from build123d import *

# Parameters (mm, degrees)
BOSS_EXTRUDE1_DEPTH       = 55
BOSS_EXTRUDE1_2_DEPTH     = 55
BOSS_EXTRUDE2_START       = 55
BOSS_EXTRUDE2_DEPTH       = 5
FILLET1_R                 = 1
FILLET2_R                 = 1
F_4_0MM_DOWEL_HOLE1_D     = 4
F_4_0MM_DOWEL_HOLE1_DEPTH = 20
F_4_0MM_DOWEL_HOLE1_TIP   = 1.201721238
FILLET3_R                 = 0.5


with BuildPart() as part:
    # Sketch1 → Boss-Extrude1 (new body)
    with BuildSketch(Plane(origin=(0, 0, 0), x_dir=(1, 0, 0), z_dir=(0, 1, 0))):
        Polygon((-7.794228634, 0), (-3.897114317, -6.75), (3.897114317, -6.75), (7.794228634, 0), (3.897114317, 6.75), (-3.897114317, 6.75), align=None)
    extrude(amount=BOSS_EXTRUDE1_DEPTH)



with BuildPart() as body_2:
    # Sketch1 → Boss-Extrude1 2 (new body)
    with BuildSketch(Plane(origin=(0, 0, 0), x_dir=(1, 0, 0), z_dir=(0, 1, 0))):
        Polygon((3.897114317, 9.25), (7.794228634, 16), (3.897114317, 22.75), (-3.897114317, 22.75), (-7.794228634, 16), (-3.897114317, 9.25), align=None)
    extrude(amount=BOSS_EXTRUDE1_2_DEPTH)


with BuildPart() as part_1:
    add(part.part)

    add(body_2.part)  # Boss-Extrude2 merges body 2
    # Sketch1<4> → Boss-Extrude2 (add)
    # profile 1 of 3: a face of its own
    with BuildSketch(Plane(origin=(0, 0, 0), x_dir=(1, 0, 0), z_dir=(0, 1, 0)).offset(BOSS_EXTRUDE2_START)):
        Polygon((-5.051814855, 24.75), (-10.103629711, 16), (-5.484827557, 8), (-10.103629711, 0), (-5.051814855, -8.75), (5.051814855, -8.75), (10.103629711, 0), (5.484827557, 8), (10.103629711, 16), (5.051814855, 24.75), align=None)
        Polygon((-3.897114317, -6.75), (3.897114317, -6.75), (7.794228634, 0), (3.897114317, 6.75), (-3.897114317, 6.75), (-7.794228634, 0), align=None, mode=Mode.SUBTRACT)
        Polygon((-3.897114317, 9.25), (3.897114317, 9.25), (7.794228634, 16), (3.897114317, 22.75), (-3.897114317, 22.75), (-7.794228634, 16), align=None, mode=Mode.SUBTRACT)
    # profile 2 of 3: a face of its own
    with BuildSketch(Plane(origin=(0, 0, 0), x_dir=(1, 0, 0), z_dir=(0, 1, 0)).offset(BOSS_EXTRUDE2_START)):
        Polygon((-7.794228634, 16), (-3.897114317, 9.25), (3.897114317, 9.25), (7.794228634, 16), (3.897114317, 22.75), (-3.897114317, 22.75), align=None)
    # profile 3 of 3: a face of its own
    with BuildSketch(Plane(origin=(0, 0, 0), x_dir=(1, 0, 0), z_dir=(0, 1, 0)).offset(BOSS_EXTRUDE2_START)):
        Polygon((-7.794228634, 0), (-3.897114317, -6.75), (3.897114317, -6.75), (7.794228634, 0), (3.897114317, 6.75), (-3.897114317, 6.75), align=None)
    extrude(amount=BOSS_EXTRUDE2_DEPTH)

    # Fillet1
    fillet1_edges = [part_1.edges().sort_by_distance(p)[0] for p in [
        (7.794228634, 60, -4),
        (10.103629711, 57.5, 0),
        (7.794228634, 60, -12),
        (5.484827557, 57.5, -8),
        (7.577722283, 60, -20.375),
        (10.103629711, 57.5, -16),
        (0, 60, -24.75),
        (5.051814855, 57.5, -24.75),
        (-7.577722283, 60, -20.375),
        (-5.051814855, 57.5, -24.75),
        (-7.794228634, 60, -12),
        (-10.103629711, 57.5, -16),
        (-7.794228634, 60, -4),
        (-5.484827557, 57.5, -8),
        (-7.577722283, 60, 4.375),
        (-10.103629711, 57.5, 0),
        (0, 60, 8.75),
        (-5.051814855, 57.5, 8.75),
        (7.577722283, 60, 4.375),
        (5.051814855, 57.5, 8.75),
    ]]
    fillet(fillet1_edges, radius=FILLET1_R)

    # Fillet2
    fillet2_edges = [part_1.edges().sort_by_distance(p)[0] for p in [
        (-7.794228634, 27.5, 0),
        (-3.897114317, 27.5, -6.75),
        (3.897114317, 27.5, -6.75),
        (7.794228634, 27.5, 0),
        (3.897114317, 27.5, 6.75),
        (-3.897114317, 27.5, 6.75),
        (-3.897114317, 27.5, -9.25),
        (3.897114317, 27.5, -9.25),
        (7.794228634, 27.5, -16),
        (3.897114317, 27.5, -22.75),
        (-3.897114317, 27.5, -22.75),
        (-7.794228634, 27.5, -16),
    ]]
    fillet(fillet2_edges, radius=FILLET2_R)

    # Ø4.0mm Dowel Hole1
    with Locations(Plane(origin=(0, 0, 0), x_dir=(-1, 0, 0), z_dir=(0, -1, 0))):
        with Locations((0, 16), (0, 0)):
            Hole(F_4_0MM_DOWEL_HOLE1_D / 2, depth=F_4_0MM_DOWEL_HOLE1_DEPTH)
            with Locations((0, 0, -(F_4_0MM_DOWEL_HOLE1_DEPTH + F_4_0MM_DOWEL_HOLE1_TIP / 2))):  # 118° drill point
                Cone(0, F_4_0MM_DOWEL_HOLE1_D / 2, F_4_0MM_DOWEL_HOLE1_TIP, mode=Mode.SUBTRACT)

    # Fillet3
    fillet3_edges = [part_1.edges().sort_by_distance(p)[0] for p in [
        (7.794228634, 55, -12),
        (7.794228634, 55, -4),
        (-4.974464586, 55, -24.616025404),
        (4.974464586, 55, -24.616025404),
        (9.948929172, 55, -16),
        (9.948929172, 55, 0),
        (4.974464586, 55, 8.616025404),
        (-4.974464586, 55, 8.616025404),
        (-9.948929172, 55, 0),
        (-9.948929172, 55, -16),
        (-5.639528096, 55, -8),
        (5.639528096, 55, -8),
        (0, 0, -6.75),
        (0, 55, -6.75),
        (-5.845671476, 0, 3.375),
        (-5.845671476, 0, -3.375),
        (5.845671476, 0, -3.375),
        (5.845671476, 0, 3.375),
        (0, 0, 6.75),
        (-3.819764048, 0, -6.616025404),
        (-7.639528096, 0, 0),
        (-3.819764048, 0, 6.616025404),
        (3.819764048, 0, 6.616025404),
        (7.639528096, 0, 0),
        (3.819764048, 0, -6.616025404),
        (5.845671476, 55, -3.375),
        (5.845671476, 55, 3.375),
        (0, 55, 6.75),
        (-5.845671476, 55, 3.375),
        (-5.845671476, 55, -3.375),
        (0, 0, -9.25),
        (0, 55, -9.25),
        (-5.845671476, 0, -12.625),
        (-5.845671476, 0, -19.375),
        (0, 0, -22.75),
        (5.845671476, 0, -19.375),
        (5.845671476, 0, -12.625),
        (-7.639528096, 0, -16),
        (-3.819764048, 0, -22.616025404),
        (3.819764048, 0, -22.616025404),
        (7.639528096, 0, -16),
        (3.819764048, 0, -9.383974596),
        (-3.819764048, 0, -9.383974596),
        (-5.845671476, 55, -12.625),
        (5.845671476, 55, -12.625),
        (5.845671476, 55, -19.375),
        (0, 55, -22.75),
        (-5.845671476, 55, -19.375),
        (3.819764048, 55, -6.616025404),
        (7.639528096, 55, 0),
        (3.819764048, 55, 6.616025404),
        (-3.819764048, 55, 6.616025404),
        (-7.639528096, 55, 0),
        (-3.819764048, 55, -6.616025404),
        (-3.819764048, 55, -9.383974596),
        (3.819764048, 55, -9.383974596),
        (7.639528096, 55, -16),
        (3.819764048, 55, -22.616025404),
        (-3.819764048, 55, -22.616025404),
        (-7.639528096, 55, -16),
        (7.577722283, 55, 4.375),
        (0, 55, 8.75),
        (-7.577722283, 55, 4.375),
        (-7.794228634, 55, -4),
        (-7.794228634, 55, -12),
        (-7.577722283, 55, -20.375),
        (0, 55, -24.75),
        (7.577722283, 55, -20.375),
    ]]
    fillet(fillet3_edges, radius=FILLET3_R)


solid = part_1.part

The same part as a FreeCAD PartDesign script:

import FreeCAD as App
import Part
import Sketcher
from FreeCAD import Vector
Q = App.Units.Quantity


def edges_at(feature, points):
    """Names of the edges that pass closest to the given points."""
    edges = feature.Shape.Edges
    near = lambda p: min(range(len(edges)), key=lambda i: edges[i].distToShape(Part.Vertex(*p))[0])
    return sorted({f"Edge{near(p) + 1}" for p in points})


def add_polygon(sketch, points):
    """Adds a closed chain of lines whose ends are joined by coincident constraints."""
    first, n = sketch.GeometryCount, len(points)
    for a, b in zip(points, points[1:] + points[:1]):
        sketch.addGeometry(Part.LineSegment(App.Vector(*a, 0), App.Vector(*b, 0)), False)
    for i in range(n):
        sketch.addConstraint(Sketcher.Constraint("Coincident", first + i, 2, first + (i + 1) % n, 1))

doc = App.newDocument("Part")
params = doc.addObject("Spreadsheet::Sheet", "Params")
for row, (alias, value) in enumerate([
    ("pad1_length", "55 mm"),
    ("pad2_length", "55 mm"),
    ("pad3_length", "5 mm"),
    ("fillet_radius", "1 mm"),
    ("fillet2_radius", "1 mm"),
    ("sketch4_diameter", "4 mm"),
    ("hole_diameter", "4 mm"),
    ("hole_depth", "20 mm"),
    ("fillet3_radius", "0.5 mm"),
], start=1):
    params.set(f"A{row}", alias)
    params.set(f"B{row}", "=" + value)
    params.setAlias(f"B{row}", alias)

body = doc.addObject("PartDesign::Body", "Body")

# Sketch on XZ plane
sketch1 = body.newObject("Sketcher::SketchObject", "Sketch")
sketch1.AttachmentSupport = (doc.getObject("XZ_Plane"), [""])
sketch1.MapMode = "FlatFace"
add_polygon(sketch1, [(-8, 0), (-4, 7), (4, 7), (8, 0), (4, -7), (-4, -7)])  # lines 0-5
sketch1.addConstraint(Sketcher.Constraint("Horizontal", 1))
sketch1.addConstraint(Sketcher.Constraint("Horizontal", 4))
sketch1.addConstraint(Sketcher.Constraint("Symmetric", 0, 2, 3, 2, -1, 1))
sketch1.addConstraint(Sketcher.Constraint("Symmetric", 2, 2, 5, 2, -1, 1))
sketch1.addConstraint(Sketcher.Constraint("PointOnObject", 2, 2, -1))
sketch1.addConstraint(Sketcher.Constraint("Parallel", 2, 5))
sketch1.addConstraint(Sketcher.Constraint("Vertical", 1, 2, 3, 2))
sketch1.addConstraint(Sketcher.Constraint("Angle", 0, Q("60 deg")))
sketch1.addConstraint(Sketcher.Constraint("DistanceY", 3, 2, 1, 2, 13.5))
sketch1.addConstraint(Sketcher.Constraint("DistanceX", 1, 1, 1, 2, 7.794229))
pad1 = body.newObject("PartDesign::Pad", "Pad")
pad1.Profile = sketch1
pad1.setExpression("Length", "Params.pad1_length")
pad1.Reversed = True
body2 = doc.addObject("PartDesign::Body", "Body001")

# Sketch on XZ plane
sketch2 = body2.newObject("Sketcher::SketchObject", "Sketch001")
sketch2.AttachmentSupport = (doc.getObject("XZ_Plane001"), [""])
sketch2.MapMode = "FlatFace"
add_polygon(sketch2, [(4, -9), (8, -16), (4, -23), (-4, -23), (-8, -16), (-4, -9)])  # lines 0-5
sketch2.addConstraint(Sketcher.Constraint("Horizontal", 2))
sketch2.addConstraint(Sketcher.Constraint("Horizontal", 5))
sketch2.addConstraint(Sketcher.Constraint("Symmetric", 0, 2, 3, 2, -2))
sketch2.addConstraint(Sketcher.Constraint("Parallel", 0, 3))
sketch2.addConstraint(Sketcher.Constraint("Parallel", 1, 4))
sketch2.addConstraint(Sketcher.Constraint("Vertical", 2, 2, 4, 2))
sketch2.addConstraint(Sketcher.Constraint("Vertical", 1, 2, 5, 2))
sketch2.addConstraint(Sketcher.Constraint("Angle", 0, Q("-60 deg")))
sketch2.addConstraint(Sketcher.Constraint("DistanceY", 0, 2, -1, 1, 16.0))
sketch2.addConstraint(Sketcher.Constraint("DistanceY", 2, 2, 4, 2, 13.5))
sketch2.addConstraint(Sketcher.Constraint("DistanceX", 2, 2, 2, 1, 7.794229))
pad2 = body2.newObject("PartDesign::Pad", "Pad001")
pad2.Profile = sketch2
pad2.setExpression("Length", "Params.pad2_length")
pad2.Reversed = True
body.AllowCompound = True
doc.recompute()

boolean = body.newObject("PartDesign::Boolean", "Boolean")
boolean.Type = "Fuse"
boolean.addObjects([body2])

# Sketch on XZ plane
sketch3 = body.newObject("Sketcher::SketchObject", "Sketch002")
sketch3.AttachmentSupport = (doc.getObject("XZ_Plane"), [""])
sketch3.MapMode = "FlatFace"
sketch3.AttachmentOffset = App.Placement(Vector(0, 0, -55), App.Rotation())
add_polygon(sketch3, [(-5, -25), (-10, -16), (-5, -8), (-10, 0), (-5, 9), (5, 9), (10, 0), (5, -8), (10, -16), (5, -25)])  # lines 0-9
sketch3.addConstraint(Sketcher.Constraint("Horizontal", 4))
sketch3.addConstraint(Sketcher.Constraint("Horizontal", 9))
sketch3.addConstraint(Sketcher.Constraint("Symmetric", 2, 2, 5, 2, -1, 1))
sketch3.addConstraint(Sketcher.Constraint("Symmetric", 1, 2, 6, 2, -2))
sketch3.addConstraint(Sketcher.Constraint("Symmetric", 0, 2, 7, 2, -2))
sketch3.addConstraint(Sketcher.Constraint("PointOnObject", 2, 2, -1))
sketch3.addConstraint(Sketcher.Constraint("Parallel", 0, 2))
sketch3.addConstraint(Sketcher.Constraint("Parallel", 1, 3))
sketch3.addConstraint(Sketcher.Constraint("Parallel", 2, 5))
sketch3.addConstraint(Sketcher.Constraint("Parallel", 3, 6))
sketch3.addConstraint(Sketcher.Constraint("Parallel", 6, 8))
sketch3.addConstraint(Sketcher.Constraint("Vertical", 0, 2, 2, 2))
sketch3.addConstraint(Sketcher.Constraint("Vertical", 4, 2, 8, 2))
sketch3.addConstraint(Sketcher.Constraint("Angle", 0, Q("120 deg")))
sketch3.addConstraint(Sketcher.Constraint("DistanceY", 0, 2, -1, 1, 16.0))
sketch3.addConstraint(Sketcher.Constraint("DistanceY", -1, 1, 3, 2, 8.75))
sketch3.addConstraint(Sketcher.Constraint("DistanceX", 4, 1, 4, 2, 10.10363))
pad3 = body.newObject("PartDesign::Pad", "Pad002")
pad3.Profile = sketch3
pad3.setExpression("Length", "Params.pad3_length")
pad3.Reversed = True
doc.recompute()

fillet = body.newObject("PartDesign::Fillet", "Fillet")
fillet.Base = (pad3, edges_at(pad3, [
    (7.794, 60, -4),
    (10.104, 57.5, 0),
    (7.794, 60, -12),
    (5.485, 57.5, -8),
    (7.578, 60, -20.375),
    (10.104, 57.5, -16),
    (0, 60, -24.75),
    (5.052, 57.5, -24.75),
    (-7.578, 60, -20.375),
    (-5.052, 57.5, -24.75),
    (-7.794, 60, -12),
    (-10.104, 57.5, -16),
    (-7.794, 60, -4),
    (-5.485, 57.5, -8),
    (-7.578, 60, 4.375),
    (-10.104, 57.5, 0),
    (0, 60, 8.75),
    (-5.052, 57.5, 8.75),
    (7.578, 60, 4.375),
    (5.052, 57.5, 8.75),
]))
fillet.setExpression("Radius", "Params.fillet_radius")
doc.recompute()

fillet2 = body.newObject("PartDesign::Fillet", "Fillet001")
fillet2.Base = (fillet, edges_at(fillet, [
    (-7.794, 27.5, 0),
    (-3.897, 27.5, -6.75),
    (3.897, 27.5, -6.75),
    (7.794, 27.5, 0),
    (3.897, 27.5, 6.75),
    (-3.897, 27.5, 6.75),
    (-3.897, 27.5, -9.25),
    (3.897, 27.5, -9.25),
    (7.794, 27.5, -16),
    (3.897, 27.5, -22.75),
    (-3.897, 27.5, -22.75),
    (-7.794, 27.5, -16),
]))
fillet2.setExpression("Radius", "Params.fillet2_radius")

# Sketch on XZ plane
sketch4 = body.newObject("Sketcher::SketchObject", "Sketch003")
sketch4.AttachmentSupport = (doc.getObject("XZ_Plane"), [""])
sketch4.MapMode = "FlatFace"
sketch4.addGeometry(Part.Circle(Vector(0, -16, 0), Vector(0, 0, 1), 2), False)
sketch4.addGeometry(Part.Circle(Vector(0, 0, 0), Vector(0, 0, 1), 2), False)
sketch4.addConstraint(Sketcher.Constraint("Coincident", 1, 3, -1, 1))
sketch4.addConstraint(Sketcher.Constraint("Equal", 0, 1))
sketch4.addConstraint(Sketcher.Constraint("PointOnObject", 0, 3, -2))
sketch4.addConstraint(Sketcher.Constraint("Diameter", 0, 4.0))
sketch4.addConstraint(Sketcher.Constraint("DistanceY", 0, 3, -1, 1, 16.0))
sketch4.setExpression("Constraints[3]", "Params.sketch4_diameter")
doc.recompute()
hole = body.newObject("PartDesign::Hole", "Hole")
hole.Profile = sketch4
hole.ThreadType = "None"
hole.setExpression("Diameter", "Params.hole_diameter")
hole.DepthType = "Dimension"
hole.setExpression("Depth", "Params.hole_depth")
hole.DrillPoint = "Angled"
hole.DrillPointAngle = 118
doc.recompute()

fillet3 = body.newObject("PartDesign::Fillet", "Fillet002")
fillet3.Base = (hole, edges_at(hole, [
    (7.794, 55, -12),
    (7.794, 55, -4),
    (-4.974, 55, -24.616),
    (4.974, 55, -24.616),
    (9.949, 55, -16),
    (9.949, 55, 0),
    (4.974, 55, 8.616),
    (-4.974, 55, 8.616),
    (-9.949, 55, 0),
    (-9.949, 55, -16),
    (-5.64, 55, -8),
    (5.64, 55, -8),
    (0, 0, -6.75),
    (0, 55, -6.75),
    (-5.846, 0, 3.375),
    (-5.846, 0, -3.375),
    (5.846, 0, -3.375),
    (5.846, 0, 3.375),
    (0, 0, 6.75),
    (-3.82, 0, -6.616),
    (-7.64, 0, 0),
    (-3.82, 0, 6.616),
    (3.82, 0, 6.616),
    (7.64, 0, 0),
    (3.82, 0, -6.616),
    (5.846, 55, -3.375),
    (5.846, 55, 3.375),
    (0, 55, 6.75),
    (-5.846, 55, 3.375),
    (-5.846, 55, -3.375),
    (0, 0, -9.25),
    (0, 55, -9.25),
    (-5.846, 0, -12.625),
    (-5.846, 0, -19.375),
    (0, 0, -22.75),
    (5.846, 0, -19.375),
    (5.846, 0, -12.625),
    (-7.64, 0, -16),
    (-3.82, 0, -22.616),
    (3.82, 0, -22.616),
    (7.64, 0, -16),
    (3.82, 0, -9.384),
    (-3.82, 0, -9.384),
    (-5.846, 55, -12.625),
    (5.846, 55, -12.625),
    (5.846, 55, -19.375),
    (0, 55, -22.75),
    (-5.846, 55, -19.375),
    (3.82, 55, -6.616),
    (7.64, 55, 0),
    (3.82, 55, 6.616),
    (-3.82, 55, 6.616),
    (-7.64, 55, 0),
    (-3.82, 55, -6.616),
    (-3.82, 55, -9.384),
    (3.82, 55, -9.384),
    (7.64, 55, -16),
    (3.82, 55, -22.616),
    (-3.82, 55, -22.616),
    (-7.64, 55, -16),
    (7.578, 55, 4.375),
    (0, 55, 8.75),
    (-7.578, 55, 4.375),
    (-7.794, 55, -4),
    (-7.794, 55, -12),
    (-7.578, 55, -20.375),
    (0, 55, -24.75),
    (7.578, 55, -20.375),
]))
fillet3.setExpression("Radius", "Params.fillet3_radius")

doc.recompute()
